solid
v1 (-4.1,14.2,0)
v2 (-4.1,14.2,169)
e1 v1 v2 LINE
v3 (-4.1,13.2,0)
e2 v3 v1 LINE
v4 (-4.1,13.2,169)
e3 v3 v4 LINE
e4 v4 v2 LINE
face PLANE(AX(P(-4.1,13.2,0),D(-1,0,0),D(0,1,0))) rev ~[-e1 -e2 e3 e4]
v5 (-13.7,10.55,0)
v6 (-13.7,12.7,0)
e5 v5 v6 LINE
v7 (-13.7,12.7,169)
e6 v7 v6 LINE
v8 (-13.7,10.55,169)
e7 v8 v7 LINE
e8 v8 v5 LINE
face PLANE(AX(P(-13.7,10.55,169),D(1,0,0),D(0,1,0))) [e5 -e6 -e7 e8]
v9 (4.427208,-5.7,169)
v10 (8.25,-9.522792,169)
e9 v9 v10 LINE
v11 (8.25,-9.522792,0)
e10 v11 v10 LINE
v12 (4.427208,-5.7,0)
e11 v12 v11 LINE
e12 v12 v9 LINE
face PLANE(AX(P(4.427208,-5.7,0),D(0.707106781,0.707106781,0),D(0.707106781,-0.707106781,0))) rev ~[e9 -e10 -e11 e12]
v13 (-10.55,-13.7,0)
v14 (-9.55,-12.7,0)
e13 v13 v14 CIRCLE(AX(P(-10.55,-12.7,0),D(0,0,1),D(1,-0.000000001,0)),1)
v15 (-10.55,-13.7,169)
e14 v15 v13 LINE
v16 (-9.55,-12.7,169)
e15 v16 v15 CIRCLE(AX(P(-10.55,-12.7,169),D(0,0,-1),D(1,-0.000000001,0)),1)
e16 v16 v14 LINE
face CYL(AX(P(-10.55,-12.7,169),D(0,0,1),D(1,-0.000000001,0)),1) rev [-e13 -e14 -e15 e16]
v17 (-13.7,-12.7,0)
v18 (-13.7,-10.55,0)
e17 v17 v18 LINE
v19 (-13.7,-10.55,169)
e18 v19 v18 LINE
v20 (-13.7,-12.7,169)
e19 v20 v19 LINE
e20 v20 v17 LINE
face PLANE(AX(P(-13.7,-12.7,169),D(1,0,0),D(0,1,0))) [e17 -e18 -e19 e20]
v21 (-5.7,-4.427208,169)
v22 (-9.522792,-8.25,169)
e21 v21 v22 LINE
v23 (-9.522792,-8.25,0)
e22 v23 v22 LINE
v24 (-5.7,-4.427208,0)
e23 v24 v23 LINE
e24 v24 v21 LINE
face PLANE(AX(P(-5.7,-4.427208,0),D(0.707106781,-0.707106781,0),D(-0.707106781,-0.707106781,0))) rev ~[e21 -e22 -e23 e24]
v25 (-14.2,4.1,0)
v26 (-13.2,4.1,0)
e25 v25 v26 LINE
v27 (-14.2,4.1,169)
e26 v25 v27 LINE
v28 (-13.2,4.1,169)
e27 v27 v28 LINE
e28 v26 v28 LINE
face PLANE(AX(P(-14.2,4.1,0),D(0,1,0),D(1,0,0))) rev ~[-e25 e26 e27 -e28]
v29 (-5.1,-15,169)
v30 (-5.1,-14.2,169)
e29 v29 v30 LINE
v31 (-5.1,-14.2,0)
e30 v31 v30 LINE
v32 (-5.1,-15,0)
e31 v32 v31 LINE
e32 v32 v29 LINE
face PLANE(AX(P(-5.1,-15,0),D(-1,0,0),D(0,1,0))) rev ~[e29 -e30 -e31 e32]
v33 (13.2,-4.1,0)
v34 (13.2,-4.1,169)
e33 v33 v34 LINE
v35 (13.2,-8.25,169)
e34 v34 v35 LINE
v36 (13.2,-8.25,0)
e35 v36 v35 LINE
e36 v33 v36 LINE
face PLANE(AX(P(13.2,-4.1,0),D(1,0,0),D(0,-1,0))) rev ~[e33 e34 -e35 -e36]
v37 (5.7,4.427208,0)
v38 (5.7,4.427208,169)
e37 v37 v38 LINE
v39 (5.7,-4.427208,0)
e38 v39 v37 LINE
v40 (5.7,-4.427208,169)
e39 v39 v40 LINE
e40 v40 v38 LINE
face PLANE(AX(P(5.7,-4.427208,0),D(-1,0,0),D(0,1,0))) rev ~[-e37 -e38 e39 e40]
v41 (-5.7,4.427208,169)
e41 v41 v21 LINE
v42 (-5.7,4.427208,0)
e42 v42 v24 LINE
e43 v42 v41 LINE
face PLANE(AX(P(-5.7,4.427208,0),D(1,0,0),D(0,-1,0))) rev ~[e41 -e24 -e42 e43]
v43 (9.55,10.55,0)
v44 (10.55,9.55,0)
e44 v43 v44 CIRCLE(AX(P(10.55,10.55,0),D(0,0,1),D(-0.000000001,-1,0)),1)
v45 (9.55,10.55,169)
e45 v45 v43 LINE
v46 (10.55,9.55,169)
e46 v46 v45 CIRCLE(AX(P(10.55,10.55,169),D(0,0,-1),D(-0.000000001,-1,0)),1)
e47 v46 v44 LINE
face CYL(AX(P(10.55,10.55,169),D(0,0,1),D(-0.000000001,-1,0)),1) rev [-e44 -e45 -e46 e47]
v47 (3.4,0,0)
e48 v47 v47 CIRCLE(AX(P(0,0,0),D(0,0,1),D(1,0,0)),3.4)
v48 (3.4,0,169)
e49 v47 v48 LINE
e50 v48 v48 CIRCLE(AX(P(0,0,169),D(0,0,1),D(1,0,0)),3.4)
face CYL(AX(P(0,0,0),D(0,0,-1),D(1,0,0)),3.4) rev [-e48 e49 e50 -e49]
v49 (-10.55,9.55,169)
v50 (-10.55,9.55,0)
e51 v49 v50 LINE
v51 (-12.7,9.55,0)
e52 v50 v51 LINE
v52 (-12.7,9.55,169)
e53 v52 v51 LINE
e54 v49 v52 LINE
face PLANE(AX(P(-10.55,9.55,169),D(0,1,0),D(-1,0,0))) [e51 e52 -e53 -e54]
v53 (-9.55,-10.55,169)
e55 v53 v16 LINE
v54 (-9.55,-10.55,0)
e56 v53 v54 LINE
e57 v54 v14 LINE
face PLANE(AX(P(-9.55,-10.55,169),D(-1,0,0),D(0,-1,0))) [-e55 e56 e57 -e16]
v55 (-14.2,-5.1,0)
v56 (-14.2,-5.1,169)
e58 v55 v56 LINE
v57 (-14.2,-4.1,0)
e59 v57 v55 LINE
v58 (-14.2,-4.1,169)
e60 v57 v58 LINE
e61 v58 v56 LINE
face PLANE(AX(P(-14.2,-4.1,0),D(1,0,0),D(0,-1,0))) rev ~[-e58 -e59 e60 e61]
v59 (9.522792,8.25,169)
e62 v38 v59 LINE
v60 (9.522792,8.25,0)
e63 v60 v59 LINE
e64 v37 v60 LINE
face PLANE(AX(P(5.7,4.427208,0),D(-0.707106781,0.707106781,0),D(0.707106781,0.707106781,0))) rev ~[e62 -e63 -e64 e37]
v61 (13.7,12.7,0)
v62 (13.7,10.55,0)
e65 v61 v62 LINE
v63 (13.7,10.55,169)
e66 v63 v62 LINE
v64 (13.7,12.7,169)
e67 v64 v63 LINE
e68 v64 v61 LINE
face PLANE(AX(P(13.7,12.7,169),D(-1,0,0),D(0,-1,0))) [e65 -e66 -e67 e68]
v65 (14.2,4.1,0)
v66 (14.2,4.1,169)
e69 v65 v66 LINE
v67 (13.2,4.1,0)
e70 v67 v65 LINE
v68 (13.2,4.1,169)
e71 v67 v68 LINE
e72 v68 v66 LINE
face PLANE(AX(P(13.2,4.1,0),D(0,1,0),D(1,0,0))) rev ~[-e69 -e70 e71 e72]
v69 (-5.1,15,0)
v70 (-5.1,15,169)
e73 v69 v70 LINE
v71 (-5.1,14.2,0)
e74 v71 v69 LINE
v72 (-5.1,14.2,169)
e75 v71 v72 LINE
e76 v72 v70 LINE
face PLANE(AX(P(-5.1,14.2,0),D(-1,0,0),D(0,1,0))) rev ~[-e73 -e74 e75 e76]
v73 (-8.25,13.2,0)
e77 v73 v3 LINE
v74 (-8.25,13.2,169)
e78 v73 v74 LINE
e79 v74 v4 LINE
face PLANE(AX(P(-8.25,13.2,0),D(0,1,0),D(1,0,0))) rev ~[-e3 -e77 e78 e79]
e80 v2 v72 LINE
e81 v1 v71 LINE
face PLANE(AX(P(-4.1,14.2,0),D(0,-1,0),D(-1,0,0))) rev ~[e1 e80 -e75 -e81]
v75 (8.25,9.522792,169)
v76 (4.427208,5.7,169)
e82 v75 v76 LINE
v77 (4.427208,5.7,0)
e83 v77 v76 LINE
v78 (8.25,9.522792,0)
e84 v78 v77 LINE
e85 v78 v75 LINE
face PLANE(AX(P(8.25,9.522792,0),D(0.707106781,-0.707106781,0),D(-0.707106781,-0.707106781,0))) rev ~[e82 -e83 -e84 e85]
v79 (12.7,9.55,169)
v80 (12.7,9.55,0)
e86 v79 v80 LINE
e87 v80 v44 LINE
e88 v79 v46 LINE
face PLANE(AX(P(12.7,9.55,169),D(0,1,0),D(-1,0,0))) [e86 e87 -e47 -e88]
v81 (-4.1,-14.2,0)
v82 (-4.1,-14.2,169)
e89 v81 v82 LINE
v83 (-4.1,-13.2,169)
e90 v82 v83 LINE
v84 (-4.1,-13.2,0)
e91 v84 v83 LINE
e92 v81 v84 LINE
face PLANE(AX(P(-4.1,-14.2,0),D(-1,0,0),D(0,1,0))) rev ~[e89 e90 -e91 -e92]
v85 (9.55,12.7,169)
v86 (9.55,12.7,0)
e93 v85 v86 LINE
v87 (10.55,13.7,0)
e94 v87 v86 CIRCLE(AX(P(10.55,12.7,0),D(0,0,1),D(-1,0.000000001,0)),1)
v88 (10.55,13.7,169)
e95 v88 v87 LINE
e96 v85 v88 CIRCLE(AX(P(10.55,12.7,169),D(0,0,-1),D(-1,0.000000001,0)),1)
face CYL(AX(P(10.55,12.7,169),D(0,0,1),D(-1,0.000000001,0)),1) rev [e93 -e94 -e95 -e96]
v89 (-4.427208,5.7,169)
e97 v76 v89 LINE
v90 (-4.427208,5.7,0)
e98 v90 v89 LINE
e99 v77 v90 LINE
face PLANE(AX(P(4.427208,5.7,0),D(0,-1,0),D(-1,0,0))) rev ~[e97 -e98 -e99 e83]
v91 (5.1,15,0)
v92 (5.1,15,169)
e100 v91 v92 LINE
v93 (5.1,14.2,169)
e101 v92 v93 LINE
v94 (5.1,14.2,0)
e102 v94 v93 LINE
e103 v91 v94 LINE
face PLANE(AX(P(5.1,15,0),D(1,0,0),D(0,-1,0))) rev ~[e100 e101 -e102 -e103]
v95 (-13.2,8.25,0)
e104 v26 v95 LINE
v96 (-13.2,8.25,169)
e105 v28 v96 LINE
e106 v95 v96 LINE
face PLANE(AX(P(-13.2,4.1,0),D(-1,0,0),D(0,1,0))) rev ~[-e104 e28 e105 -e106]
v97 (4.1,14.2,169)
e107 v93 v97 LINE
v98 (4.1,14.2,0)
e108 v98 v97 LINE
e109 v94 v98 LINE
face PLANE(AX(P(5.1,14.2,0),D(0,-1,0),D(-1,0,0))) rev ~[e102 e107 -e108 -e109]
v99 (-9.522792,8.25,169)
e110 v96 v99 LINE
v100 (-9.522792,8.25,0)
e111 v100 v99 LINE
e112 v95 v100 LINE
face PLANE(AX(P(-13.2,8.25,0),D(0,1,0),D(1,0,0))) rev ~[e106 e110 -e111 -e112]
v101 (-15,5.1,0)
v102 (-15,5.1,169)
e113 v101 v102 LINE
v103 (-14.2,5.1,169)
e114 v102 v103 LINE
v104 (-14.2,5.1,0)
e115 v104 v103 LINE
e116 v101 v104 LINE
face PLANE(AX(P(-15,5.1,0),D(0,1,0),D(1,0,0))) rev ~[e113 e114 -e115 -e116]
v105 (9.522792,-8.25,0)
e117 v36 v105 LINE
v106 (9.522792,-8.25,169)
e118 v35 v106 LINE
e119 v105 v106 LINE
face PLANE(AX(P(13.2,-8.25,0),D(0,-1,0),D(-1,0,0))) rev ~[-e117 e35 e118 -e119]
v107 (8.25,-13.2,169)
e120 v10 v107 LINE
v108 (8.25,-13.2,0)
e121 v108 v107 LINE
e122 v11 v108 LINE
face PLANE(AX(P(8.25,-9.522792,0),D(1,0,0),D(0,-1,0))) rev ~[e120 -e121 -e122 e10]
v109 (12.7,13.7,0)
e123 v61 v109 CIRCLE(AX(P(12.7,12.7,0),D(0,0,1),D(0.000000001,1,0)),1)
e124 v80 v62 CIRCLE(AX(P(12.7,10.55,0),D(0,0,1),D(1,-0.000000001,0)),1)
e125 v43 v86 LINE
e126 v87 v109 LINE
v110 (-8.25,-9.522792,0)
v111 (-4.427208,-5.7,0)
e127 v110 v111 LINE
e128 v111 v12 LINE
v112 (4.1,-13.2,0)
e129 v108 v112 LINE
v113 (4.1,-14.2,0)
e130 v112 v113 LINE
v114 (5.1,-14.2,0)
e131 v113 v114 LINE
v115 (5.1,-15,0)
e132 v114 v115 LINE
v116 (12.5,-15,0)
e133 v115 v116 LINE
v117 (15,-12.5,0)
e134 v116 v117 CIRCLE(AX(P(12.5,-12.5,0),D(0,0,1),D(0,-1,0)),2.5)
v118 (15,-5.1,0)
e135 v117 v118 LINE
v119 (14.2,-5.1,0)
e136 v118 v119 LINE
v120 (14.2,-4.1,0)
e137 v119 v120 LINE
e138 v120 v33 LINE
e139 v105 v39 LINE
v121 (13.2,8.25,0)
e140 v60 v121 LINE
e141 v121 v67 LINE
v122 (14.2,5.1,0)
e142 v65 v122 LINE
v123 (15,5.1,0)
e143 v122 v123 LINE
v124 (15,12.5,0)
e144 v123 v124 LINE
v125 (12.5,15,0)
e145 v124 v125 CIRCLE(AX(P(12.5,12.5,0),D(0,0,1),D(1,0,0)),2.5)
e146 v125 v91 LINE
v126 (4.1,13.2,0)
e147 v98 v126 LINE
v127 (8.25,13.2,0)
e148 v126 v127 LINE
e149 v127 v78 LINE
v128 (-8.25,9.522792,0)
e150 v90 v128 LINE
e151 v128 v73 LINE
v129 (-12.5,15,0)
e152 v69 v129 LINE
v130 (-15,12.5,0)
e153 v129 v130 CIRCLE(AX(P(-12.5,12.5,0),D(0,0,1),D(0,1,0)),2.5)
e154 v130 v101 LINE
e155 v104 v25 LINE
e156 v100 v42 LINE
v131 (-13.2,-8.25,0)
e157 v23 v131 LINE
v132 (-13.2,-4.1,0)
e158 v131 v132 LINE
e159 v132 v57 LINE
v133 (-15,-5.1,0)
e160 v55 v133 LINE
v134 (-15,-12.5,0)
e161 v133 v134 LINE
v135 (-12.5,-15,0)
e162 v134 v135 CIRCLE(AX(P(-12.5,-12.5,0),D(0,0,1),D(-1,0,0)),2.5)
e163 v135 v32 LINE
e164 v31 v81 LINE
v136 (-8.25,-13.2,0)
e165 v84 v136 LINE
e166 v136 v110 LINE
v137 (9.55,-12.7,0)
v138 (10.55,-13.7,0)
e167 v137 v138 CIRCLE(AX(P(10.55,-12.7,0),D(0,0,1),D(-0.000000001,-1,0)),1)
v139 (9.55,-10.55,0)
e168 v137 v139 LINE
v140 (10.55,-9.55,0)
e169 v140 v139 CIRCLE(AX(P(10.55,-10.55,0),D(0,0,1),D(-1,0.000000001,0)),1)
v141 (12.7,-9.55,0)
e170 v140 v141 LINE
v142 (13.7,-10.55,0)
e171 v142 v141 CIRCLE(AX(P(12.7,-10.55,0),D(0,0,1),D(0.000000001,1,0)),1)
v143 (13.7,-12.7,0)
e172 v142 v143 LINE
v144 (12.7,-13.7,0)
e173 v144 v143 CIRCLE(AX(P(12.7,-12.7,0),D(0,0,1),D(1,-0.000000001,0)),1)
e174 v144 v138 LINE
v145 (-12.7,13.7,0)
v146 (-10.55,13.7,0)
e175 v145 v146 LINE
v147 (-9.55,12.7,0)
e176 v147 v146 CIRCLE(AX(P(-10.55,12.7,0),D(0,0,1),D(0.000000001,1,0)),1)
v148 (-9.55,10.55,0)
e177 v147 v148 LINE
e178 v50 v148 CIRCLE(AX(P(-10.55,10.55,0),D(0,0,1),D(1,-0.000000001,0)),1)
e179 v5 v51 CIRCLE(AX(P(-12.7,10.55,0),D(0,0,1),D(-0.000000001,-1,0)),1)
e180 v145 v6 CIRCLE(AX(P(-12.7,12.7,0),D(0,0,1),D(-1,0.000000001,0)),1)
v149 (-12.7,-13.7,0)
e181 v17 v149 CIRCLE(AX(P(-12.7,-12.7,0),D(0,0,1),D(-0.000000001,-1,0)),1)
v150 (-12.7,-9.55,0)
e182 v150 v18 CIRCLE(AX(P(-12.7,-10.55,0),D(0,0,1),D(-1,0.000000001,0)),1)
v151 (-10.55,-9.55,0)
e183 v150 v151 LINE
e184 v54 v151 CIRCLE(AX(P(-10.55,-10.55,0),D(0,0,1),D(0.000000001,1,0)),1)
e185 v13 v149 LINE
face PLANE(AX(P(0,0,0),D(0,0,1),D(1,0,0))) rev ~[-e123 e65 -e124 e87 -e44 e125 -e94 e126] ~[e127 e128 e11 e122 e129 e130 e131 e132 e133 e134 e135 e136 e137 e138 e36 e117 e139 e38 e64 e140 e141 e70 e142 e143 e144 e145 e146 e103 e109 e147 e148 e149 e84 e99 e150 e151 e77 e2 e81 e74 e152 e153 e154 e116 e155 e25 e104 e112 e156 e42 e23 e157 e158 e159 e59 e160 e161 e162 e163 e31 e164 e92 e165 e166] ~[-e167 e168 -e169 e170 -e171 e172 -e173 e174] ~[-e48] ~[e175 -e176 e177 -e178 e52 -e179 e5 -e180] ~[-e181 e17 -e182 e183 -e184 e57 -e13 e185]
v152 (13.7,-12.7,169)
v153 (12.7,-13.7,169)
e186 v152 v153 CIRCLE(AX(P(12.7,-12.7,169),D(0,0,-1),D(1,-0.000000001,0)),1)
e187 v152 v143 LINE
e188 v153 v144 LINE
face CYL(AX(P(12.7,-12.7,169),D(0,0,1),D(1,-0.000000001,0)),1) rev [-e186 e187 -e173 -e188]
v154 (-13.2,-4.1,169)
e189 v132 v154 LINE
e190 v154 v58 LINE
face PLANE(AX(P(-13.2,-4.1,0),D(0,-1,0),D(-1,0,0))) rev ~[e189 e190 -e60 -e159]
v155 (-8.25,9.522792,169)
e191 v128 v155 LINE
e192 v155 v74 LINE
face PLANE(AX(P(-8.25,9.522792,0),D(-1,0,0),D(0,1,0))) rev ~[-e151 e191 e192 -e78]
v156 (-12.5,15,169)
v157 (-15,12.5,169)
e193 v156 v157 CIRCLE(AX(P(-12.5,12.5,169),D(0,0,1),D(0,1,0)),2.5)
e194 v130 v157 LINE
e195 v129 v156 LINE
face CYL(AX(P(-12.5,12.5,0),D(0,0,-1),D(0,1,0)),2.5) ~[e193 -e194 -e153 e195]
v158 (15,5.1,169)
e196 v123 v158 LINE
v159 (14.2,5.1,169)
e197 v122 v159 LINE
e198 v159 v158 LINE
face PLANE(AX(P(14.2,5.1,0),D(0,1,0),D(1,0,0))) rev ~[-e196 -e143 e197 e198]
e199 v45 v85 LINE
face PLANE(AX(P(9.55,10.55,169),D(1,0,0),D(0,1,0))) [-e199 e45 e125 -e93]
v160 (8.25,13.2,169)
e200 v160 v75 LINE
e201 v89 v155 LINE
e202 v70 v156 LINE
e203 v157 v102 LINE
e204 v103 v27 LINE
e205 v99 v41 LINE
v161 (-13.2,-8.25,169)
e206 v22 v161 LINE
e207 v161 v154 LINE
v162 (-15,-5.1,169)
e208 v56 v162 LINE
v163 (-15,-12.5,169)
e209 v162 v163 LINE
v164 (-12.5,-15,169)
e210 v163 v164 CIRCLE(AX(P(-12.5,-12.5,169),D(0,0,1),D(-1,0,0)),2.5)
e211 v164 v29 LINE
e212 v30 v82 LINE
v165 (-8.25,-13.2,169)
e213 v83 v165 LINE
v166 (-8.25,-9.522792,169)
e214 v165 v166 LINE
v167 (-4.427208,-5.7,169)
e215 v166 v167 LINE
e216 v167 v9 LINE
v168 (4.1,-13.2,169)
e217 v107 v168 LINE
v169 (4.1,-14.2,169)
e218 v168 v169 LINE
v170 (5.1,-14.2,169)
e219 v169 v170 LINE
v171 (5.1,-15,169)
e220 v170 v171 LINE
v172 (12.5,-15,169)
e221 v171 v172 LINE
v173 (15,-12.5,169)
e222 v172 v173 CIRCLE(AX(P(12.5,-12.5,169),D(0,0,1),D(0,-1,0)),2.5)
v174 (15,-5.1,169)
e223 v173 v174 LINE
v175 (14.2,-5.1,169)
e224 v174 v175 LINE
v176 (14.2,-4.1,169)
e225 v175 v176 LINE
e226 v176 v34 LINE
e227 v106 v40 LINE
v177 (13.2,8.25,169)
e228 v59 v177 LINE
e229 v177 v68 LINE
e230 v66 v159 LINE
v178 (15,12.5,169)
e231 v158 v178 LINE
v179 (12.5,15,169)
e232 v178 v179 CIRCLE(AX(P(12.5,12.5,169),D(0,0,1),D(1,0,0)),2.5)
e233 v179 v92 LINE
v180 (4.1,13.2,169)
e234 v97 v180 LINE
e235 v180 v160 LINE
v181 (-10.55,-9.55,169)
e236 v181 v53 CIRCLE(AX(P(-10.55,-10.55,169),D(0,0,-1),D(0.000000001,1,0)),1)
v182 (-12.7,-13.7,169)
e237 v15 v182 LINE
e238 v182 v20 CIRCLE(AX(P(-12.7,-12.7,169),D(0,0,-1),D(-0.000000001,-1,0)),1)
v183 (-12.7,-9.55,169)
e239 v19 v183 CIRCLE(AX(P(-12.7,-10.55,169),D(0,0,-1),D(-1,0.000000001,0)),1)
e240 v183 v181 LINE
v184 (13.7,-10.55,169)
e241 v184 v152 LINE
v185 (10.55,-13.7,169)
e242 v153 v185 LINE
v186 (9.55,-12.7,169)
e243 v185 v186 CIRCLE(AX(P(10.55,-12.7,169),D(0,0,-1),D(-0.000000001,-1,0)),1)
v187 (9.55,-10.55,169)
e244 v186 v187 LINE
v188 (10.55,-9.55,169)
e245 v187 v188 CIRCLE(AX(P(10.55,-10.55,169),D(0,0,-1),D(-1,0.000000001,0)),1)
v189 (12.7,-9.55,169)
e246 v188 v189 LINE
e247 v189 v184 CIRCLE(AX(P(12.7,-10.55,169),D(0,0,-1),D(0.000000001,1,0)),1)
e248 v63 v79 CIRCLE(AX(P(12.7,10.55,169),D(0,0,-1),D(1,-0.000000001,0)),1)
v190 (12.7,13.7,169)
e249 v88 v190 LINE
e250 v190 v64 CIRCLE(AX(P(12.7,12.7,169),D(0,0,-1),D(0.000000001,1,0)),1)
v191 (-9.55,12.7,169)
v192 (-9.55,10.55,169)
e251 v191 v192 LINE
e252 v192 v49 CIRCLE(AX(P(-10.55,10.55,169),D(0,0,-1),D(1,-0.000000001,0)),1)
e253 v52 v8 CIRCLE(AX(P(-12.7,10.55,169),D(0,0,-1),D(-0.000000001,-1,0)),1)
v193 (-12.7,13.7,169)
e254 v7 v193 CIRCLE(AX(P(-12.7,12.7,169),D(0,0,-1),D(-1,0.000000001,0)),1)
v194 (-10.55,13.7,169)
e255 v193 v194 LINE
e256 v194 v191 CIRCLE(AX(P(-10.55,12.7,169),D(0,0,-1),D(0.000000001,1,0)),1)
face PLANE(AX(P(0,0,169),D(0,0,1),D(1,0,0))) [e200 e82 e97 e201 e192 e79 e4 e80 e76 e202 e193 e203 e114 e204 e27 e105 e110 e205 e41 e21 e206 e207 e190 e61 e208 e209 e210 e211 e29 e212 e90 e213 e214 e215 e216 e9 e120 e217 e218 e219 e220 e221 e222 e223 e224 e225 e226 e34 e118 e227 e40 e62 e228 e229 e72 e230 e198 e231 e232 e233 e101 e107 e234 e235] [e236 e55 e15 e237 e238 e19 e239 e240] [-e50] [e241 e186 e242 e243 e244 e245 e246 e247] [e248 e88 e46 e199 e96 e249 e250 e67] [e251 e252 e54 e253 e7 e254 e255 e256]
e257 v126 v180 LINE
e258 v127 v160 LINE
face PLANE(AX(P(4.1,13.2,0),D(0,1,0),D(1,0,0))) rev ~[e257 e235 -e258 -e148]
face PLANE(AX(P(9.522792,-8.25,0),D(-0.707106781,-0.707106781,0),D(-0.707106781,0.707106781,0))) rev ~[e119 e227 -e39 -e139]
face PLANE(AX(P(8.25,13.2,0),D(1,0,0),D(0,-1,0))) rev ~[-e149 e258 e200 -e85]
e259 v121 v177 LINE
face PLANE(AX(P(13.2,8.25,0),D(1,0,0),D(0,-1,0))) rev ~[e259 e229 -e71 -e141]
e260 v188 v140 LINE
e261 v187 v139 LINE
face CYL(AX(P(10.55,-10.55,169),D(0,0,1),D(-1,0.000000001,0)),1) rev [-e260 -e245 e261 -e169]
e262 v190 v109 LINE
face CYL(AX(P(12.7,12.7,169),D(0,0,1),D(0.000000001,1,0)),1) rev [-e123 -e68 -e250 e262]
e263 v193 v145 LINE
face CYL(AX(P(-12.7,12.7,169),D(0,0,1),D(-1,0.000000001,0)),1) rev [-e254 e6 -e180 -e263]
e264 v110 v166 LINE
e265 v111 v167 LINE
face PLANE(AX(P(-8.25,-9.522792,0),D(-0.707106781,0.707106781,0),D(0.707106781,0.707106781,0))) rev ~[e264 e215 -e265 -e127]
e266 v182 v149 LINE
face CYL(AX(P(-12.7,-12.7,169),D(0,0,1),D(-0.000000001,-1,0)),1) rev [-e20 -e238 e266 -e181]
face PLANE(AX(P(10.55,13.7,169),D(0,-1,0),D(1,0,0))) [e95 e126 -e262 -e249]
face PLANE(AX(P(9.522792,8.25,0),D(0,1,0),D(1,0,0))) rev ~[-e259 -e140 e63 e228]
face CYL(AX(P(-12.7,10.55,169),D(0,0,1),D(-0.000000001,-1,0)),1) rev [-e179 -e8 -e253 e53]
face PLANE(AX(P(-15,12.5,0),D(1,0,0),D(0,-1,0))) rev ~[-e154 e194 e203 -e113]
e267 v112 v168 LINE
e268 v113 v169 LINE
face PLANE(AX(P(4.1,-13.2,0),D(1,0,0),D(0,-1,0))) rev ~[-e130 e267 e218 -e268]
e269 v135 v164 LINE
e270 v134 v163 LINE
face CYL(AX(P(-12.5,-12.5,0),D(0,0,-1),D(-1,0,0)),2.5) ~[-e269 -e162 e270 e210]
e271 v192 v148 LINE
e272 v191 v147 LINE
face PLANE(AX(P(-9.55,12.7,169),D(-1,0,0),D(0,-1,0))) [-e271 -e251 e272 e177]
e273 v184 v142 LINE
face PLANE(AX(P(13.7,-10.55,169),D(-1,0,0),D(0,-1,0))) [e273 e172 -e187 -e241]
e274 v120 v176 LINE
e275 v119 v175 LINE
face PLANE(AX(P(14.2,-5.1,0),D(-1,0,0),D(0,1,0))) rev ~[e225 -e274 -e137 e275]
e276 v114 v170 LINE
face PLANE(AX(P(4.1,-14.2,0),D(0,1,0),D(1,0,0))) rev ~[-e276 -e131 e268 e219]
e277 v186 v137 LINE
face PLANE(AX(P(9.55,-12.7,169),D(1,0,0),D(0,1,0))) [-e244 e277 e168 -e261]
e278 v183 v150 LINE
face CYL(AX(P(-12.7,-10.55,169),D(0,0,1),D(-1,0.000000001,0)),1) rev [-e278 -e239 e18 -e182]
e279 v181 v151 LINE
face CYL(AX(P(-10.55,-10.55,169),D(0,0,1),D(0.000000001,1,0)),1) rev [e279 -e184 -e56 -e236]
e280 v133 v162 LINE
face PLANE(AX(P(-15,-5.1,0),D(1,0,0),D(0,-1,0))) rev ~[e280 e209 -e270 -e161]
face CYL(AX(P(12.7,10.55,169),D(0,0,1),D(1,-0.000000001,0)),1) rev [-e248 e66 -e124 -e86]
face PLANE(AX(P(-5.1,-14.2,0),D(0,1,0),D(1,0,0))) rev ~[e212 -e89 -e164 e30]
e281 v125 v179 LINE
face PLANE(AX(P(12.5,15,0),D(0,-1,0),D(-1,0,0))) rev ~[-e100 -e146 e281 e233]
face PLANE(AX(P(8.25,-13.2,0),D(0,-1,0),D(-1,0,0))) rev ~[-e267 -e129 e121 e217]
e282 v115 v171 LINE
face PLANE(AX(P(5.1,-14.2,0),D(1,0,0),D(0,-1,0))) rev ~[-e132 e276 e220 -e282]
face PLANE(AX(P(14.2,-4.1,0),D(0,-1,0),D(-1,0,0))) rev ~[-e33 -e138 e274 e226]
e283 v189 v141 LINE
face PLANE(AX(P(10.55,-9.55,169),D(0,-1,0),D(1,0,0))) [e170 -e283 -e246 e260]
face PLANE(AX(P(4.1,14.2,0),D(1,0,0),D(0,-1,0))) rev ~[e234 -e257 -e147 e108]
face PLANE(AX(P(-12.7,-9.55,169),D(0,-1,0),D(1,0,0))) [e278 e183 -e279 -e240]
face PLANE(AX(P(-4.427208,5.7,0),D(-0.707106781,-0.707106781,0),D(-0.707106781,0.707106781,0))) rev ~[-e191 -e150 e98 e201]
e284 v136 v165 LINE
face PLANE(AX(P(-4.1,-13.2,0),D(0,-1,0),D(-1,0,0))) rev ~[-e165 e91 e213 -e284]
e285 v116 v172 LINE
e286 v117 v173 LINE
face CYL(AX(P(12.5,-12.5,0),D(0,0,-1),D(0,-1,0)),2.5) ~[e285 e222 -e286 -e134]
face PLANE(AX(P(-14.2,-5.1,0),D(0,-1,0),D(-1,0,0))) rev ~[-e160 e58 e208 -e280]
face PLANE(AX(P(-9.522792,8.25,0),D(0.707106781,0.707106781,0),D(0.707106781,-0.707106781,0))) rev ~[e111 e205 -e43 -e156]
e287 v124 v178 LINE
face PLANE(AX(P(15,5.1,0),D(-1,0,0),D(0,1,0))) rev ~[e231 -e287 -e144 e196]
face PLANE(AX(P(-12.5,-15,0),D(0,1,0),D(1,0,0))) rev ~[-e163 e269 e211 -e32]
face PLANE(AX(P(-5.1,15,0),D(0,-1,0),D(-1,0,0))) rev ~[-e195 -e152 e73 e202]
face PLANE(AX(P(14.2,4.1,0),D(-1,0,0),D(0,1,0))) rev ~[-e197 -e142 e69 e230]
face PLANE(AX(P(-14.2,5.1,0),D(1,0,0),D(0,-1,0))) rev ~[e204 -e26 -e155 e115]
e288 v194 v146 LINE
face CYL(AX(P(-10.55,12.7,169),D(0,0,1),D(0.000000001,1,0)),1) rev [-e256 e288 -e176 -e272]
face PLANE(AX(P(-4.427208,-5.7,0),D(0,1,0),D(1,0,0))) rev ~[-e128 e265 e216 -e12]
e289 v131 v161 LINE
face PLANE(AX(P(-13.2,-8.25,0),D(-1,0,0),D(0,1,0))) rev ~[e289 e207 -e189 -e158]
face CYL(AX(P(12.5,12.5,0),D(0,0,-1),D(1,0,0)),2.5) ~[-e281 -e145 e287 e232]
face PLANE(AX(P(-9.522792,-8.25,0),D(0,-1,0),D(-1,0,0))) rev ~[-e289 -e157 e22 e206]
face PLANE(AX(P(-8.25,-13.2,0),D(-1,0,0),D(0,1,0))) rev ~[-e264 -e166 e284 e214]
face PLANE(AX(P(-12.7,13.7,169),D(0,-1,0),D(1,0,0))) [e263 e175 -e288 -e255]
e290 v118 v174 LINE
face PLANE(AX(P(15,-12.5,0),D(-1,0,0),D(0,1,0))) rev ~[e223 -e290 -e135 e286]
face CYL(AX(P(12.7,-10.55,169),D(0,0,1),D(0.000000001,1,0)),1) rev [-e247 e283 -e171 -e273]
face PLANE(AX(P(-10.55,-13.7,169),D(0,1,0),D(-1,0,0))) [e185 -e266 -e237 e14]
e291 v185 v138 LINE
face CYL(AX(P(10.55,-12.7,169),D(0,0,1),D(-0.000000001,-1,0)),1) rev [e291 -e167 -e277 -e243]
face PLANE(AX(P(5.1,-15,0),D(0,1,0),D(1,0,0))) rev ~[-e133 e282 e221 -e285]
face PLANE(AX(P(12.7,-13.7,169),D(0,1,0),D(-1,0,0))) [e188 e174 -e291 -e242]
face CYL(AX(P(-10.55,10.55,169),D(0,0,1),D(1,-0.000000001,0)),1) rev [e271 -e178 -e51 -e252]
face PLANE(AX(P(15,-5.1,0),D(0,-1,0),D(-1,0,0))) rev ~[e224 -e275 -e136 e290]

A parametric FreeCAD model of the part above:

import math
import FreeCAD as App
import Part
import Sketcher

doc = App.newDocument("Part")
params = doc.addObject("Spreadsheet::Sheet", "Params")
for row, (alias, value) in enumerate([
    ("sketch1_diameter", "6.8 mm"),
    ("sketch1_radius", "2.5 mm"),
    ("sketch1_width", "1 mm"),
    ("sketch1_width2", "7.4 mm"),
    ("sketch1_width3", "0.8 mm"),
    ("pad1_length", "169 mm"),
    ("sketch2_radius", "1 mm"),
    ("sketch2_width", "2.15 mm"),
], start=1):
    params.set(f"A{row}", alias)
    params.set(f"B{row}", "=" + value)
    params.setAlias(f"B{row}", alias)

body = doc.addObject("PartDesign::Body", "Body")

# Sketch on XY plane
sketch1 = doc.addObject("Sketcher::SketchObject", "Sketch")
body.addObject(sketch1)
sketch1.AttachmentSupport = (doc.XY_Plane, [""])
sketch1.MapMode = "FlatFace"
sketch1.addGeometry([
    Part.LineSegment(App.Vector(-5.1, 14.2, 0), App.Vector(-5.1, 15, 0)),  # 0
    Part.LineSegment(App.Vector(-5.1, 15, 0), App.Vector(-12.5, 15, 0)),  # 1
    Part.ArcOfCircle(Part.Circle(App.Vector(-12.5, 12.5, 0), App.Vector(0, 0, 1), 2.5), math.radians(90), math.radians(180)),  # 2
    Part.LineSegment(App.Vector(-15, 12.5, 0), App.Vector(-15, 5.1, 0)),  # 3
    Part.LineSegment(App.Vector(-15, 5.1, 0), App.Vector(-14.2, 5.1, 0)),  # 4
    Part.LineSegment(App.Vector(-14.2, 5.1, 0), App.Vector(-14.2, 4.1, 0)),  # 5
    Part.LineSegment(App.Vector(-14.2, 4.1, 0), App.Vector(-13.2, 4.1, 0)),  # 6
    Part.LineSegment(App.Vector(-13.2, 4.1, 0), App.Vector(-13.2, 8.2, 0)),  # 7
    Part.LineSegment(App.Vector(-13.2, 8.2, 0), App.Vector(-9.5, 8.2, 0)),  # 8
    Part.LineSegment(App.Vector(-9.5, 8.2, 0), App.Vector(-5.7, 4.4, 0)),  # 9
    Part.LineSegment(App.Vector(-5.7, 4.4, 0), App.Vector(-5.7, -4.4, 0)),  # 10
    Part.LineSegment(App.Vector(-5.7, -4.4, 0), App.Vector(-9.5, -8.2, 0)),  # 11
    Part.LineSegment(App.Vector(-9.5, -8.2, 0), App.Vector(-13.2, -8.2, 0)),  # 12
    Part.LineSegment(App.Vector(-13.2, -8.2, 0), App.Vector(-13.2, -4.1, 0)),  # 13
    Part.LineSegment(App.Vector(-13.2, -4.1, 0), App.Vector(-14.2, -4.1, 0)),  # 14
    Part.LineSegment(App.Vector(-14.2, -4.1, 0), App.Vector(-14.2, -5.1, 0)),  # 15
    Part.LineSegment(App.Vector(-14.2, -5.1, 0), App.Vector(-15, -5.1, 0)),  # 16
    Part.LineSegment(App.Vector(-15, -5.1, 0), App.Vector(-15, -12.5, 0)),  # 17
    Part.ArcOfCircle(Part.Circle(App.Vector(-12.5, -12.5, 0), App.Vector(0, 0, 1), 2.5), math.radians(180), math.radians(270)),  # 18
    Part.LineSegment(App.Vector(-12.5, -15, 0), App.Vector(-5.1, -15, 0)),  # 19
    Part.LineSegment(App.Vector(-5.1, -15, 0), App.Vector(-5.1, -14.2, 0)),  # 20
    Part.LineSegment(App.Vector(-5.1, -14.2, 0), App.Vector(-4.1, -14.2, 0)),  # 21
    Part.LineSegment(App.Vector(-4.1, -14.2, 0), App.Vector(-4.1, -13.2, 0)),  # 22
    Part.LineSegment(App.Vector(-4.1, -13.2, 0), App.Vector(-8.2, -13.2, 0)),  # 23
    Part.LineSegment(App.Vector(-8.2, -13.2, 0), App.Vector(-8.2, -9.5, 0)),  # 24
    Part.LineSegment(App.Vector(-8.2, -9.5, 0), App.Vector(-4.4, -5.7, 0)),  # 25
    Part.LineSegment(App.Vector(-4.4, -5.7, 0), App.Vector(4.4, -5.7, 0)),  # 26
    Part.LineSegment(App.Vector(4.4, -5.7, 0), App.Vector(8.2, -9.5, 0)),  # 27
    Part.LineSegment(App.Vector(8.2, -9.5, 0), App.Vector(8.2, -13.2, 0)),  # 28
    Part.LineSegment(App.Vector(8.2, -13.2, 0), App.Vector(4.1, -13.2, 0)),  # 29
    Part.LineSegment(App.Vector(4.1, -13.2, 0), App.Vector(4.1, -14.2, 0)),  # 30
    Part.LineSegment(App.Vector(4.1, -14.2, 0), App.Vector(5.1, -14.2, 0)),  # 31
    Part.LineSegment(App.Vector(5.1, -14.2, 0), App.Vector(5.1, -15, 0)),  # 32
    Part.LineSegment(App.Vector(5.1, -15, 0), App.Vector(12.5, -15, 0)),  # 33
    Part.ArcOfCircle(Part.Circle(App.Vector(12.5, -12.5, 0), App.Vector(0, 0, 1), 2.5), math.radians(-90), math.radians(0)),  # 34
    Part.LineSegment(App.Vector(15, -12.5, 0), App.Vector(15, -5.1, 0)),  # 35
    Part.LineSegment(App.Vector(15, -5.1, 0), App.Vector(14.2, -5.1, 0)),  # 36
    Part.LineSegment(App.Vector(14.2, -5.1, 0), App.Vector(14.2, -4.1, 0)),  # 37
    Part.LineSegment(App.Vector(14.2, -4.1, 0), App.Vector(13.2, -4.1, 0)),  # 38
    Part.LineSegment(App.Vector(13.2, -4.1, 0), App.Vector(13.2, -8.2, 0)),  # 39
    Part.LineSegment(App.Vector(13.2, -8.2, 0), App.Vector(9.5, -8.2, 0)),  # 40
    Part.LineSegment(App.Vector(9.5, -8.2, 0), App.Vector(5.7, -4.4, 0)),  # 41
    Part.LineSegment(App.Vector(5.7, -4.4, 0), App.Vector(5.7, 4.4, 0)),  # 42
    Part.LineSegment(App.Vector(5.7, 4.4, 0), App.Vector(9.5, 8.2, 0)),  # 43
    Part.LineSegment(App.Vector(9.5, 8.2, 0), App.Vector(13.2, 8.2, 0)),  # 44
    Part.LineSegment(App.Vector(13.2, 8.2, 0), App.Vector(13.2, 4.1, 0)),  # 45
    Part.LineSegment(App.Vector(13.2, 4.1, 0), App.Vector(14.2, 4.1, 0)),  # 46
    Part.LineSegment(App.Vector(14.2, 4.1, 0), App.Vector(14.2, 5.1, 0)),  # 47
    Part.LineSegment(App.Vector(14.2, 5.1, 0), App.Vector(15, 5.1, 0)),  # 48
    Part.LineSegment(App.Vector(15, 5.1, 0), App.Vector(15, 12.5, 0)),  # 49
    Part.ArcOfCircle(Part.Circle(App.Vector(12.5, 12.5, 0), App.Vector(0, 0, 1), 2.5), math.radians(0), math.radians(90)),  # 50
    Part.LineSegment(App.Vector(12.5, 15, 0), App.Vector(5.1, 15, 0)),  # 51
    Part.LineSegment(App.Vector(5.1, 15, 0), App.Vector(5.1, 14.2, 0)),  # 52
    Part.LineSegment(App.Vector(5.1, 14.2, 0), App.Vector(4.1, 14.2, 0)),  # 53
    Part.LineSegment(App.Vector(4.1, 14.2, 0), App.Vector(4.1, 13.2, 0)),  # 54
    Part.LineSegment(App.Vector(4.1, 13.2, 0), App.Vector(8.2, 13.2, 0)),  # 55
    Part.LineSegment(App.Vector(8.2, 13.2, 0), App.Vector(8.2, 9.5, 0)),  # 56
    Part.LineSegment(App.Vector(8.2, 9.5, 0), App.Vector(4.4, 5.7, 0)),  # 57
    Part.LineSegment(App.Vector(4.4, 5.7, 0), App.Vector(-4.4, 5.7, 0)),  # 58
    Part.LineSegment(App.Vector(-4.4, 5.7, 0), App.Vector(-8.2, 9.5, 0)),  # 59
    Part.LineSegment(App.Vector(-8.2, 9.5, 0), App.Vector(-8.2, 13.2, 0)),  # 60
    Part.LineSegment(App.Vector(-8.2, 13.2, 0), App.Vector(-4.1, 13.2, 0)),  # 61
    Part.LineSegment(App.Vector(-4.1, 13.2, 0), App.Vector(-4.1, 14.2, 0)),  # 62
    Part.LineSegment(App.Vector(-4.1, 14.2, 0), App.Vector(-5.1, 14.2, 0)),  # 63
    Part.Circle(App.Vector(0, 0, 0), App.Vector(0, 0, 1), 3.4),  # 64
], False)
sketch1.addConstraint([
    Sketcher.Constraint("Coincident", 0, 2, 1, 1),
    Sketcher.Constraint("Tangent", 1, 2, 2, 1),
    Sketcher.Constraint("Tangent", 2, 2, 3, 1),
    Sketcher.Constraint("Coincident", 3, 2, 4, 1),
    Sketcher.Constraint("Coincident", 4, 2, 5, 1),
    Sketcher.Constraint("Coincident", 5, 2, 6, 1),
    Sketcher.Constraint("Coincident", 6, 2, 7, 1),
    Sketcher.Constraint("Coincident", 7, 2, 8, 1),
    Sketcher.Constraint("Coincident", 8, 2, 9, 1),
    Sketcher.Constraint("Coincident", 9, 2, 10, 1),
    Sketcher.Constraint("Coincident", 10, 2, 11, 1),
    Sketcher.Constraint("Coincident", 11, 2, 12, 1),
    Sketcher.Constraint("Coincident", 12, 2, 13, 1),
    Sketcher.Constraint("Coincident", 13, 2, 14, 1),
    Sketcher.Constraint("Coincident", 14, 2, 15, 1),
    Sketcher.Constraint("Coincident", 15, 2, 16, 1),
    Sketcher.Constraint("Coincident", 16, 2, 17, 1),
    Sketcher.Constraint("Tangent", 17, 2, 18, 1),
    Sketcher.Constraint("Tangent", 18, 2, 19, 1),
    Sketcher.Constraint("Coincident", 19, 2, 20, 1),
    Sketcher.Constraint("Coincident", 20, 2, 21, 1),
    Sketcher.Constraint("Coincident", 21, 2, 22, 1),
    Sketcher.Constraint("Coincident", 22, 2, 23, 1),
    Sketcher.Constraint("Coincident", 23, 2, 24, 1),
    Sketcher.Constraint("Coincident", 24, 2, 25, 1),
    Sketcher.Constraint("Coincident", 25, 2, 26, 1),
    Sketcher.Constraint("Coincident", 26, 2, 27, 1),
    Sketcher.Constraint("Coincident", 27, 2, 28, 1),
    Sketcher.Constraint("Coincident", 28, 2, 29, 1),
    Sketcher.Constraint("Coincident", 29, 2, 30, 1),
    Sketcher.Constraint("Coincident", 30, 2, 31, 1),
    Sketcher.Constraint("Coincident", 31, 2, 32, 1),
    Sketcher.Constraint("Coincident", 32, 2, 33, 1),
    Sketcher.Constraint("Tangent", 33, 2, 34, 1),
    Sketcher.Constraint("Tangent", 34, 2, 35, 1),
    Sketcher.Constraint("Coincident", 35, 2, 36, 1),
    Sketcher.Constraint("Coincident", 36, 2, 37, 1),
    Sketcher.Constraint("Coincident", 37, 2, 38, 1),
    Sketcher.Constraint("Coincident", 38, 2, 39, 1),
    Sketcher.Constraint("Coincident", 39, 2, 40, 1),
    Sketcher.Constraint("Coincident", 40, 2, 41, 1),
    Sketcher.Constraint("Coincident", 41, 2, 42, 1),
    Sketcher.Constraint("Coincident", 42, 2, 43, 1),
    Sketcher.Constraint("Coincident", 43, 2, 44, 1),
    Sketcher.Constraint("Coincident", 44, 2, 45, 1),
    Sketcher.Constraint("Coincident", 45, 2, 46, 1),
    Sketcher.Constraint("Coincident", 46, 2, 47, 1),
    Sketcher.Constraint("Coincident", 47, 2, 48, 1),
    Sketcher.Constraint("Coincident", 48, 2, 49, 1),
    Sketcher.Constraint("Tangent", 49, 2, 50, 1),
    Sketcher.Constraint("Tangent", 50, 2, 51, 1),
    Sketcher.Constraint("Coincident", 51, 2, 52, 1),
    Sketcher.Constraint("Coincident", 52, 2, 53, 1),
    Sketcher.Constraint("Coincident", 53, 2, 54, 1),
    Sketcher.Constraint("Coincident", 54, 2, 55, 1),
    Sketcher.Constraint("Coincident", 55, 2, 56, 1),
    Sketcher.Constraint("Coincident", 56, 2, 57, 1),
    Sketcher.Constraint("Coincident", 57, 2, 58, 1),
    Sketcher.Constraint("Coincident", 58, 2, 59, 1),
    Sketcher.Constraint("Coincident", 59, 2, 60, 1),
    Sketcher.Constraint("Coincident", 60, 2, 61, 1),
    Sketcher.Constraint("Coincident", 61, 2, 62, 1),
    Sketcher.Constraint("Coincident", 62, 2, 63, 1),
    Sketcher.Constraint("Coincident", 63, 2, 0, 1),
    Sketcher.Constraint("Vertical", 0),
    Sketcher.Constraint("Horizontal", 1),
    Sketcher.Constraint("Vertical", 3),
    Sketcher.Constraint("Horizontal", 4),
    Sketcher.Constraint("Vertical", 5),
    Sketcher.Constraint("Horizontal", 6),
    Sketcher.Constraint("Vertical", 7),
    Sketcher.Constraint("Horizontal", 8),
    Sketcher.Constraint("Vertical", 10),
    Sketcher.Constraint("Horizontal", 12),
    Sketcher.Constraint("Vertical", 13),
    Sketcher.Constraint("Horizontal", 14),
    Sketcher.Constraint("Vertical", 15),
    Sketcher.Constraint("Horizontal", 16),
    Sketcher.Constraint("Vertical", 17),
    Sketcher.Constraint("Horizontal", 19),
    Sketcher.Constraint("Vertical", 20),
    Sketcher.Constraint("Horizontal", 21),
    Sketcher.Constraint("Vertical", 22),
    Sketcher.Constraint("Horizontal", 23),
    Sketcher.Constraint("Vertical", 24),
    Sketcher.Constraint("Horizontal", 26),
    Sketcher.Constraint("Vertical", 28),
    Sketcher.Constraint("Horizontal", 29),
    Sketcher.Constraint("Vertical", 30),
    Sketcher.Constraint("Horizontal", 31),
    Sketcher.Constraint("Vertical", 32),
    Sketcher.Constraint("Horizontal", 33),
    Sketcher.Constraint("Vertical", 35),
    Sketcher.Constraint("Horizontal", 36),
    Sketcher.Constraint("Vertical", 37),
    Sketcher.Constraint("Horizontal", 38),
    Sketcher.Constraint("Vertical", 39),
    Sketcher.Constraint("Horizontal", 40),
    Sketcher.Constraint("Vertical", 42),
    Sketcher.Constraint("Horizontal", 44),
    Sketcher.Constraint("Vertical", 45),
    Sketcher.Constraint("Horizontal", 46),
    Sketcher.Constraint("Vertical", 47),
    Sketcher.Constraint("Horizontal", 48),
    Sketcher.Constraint("Vertical", 49),
    Sketcher.Constraint("Horizontal", 51),
    Sketcher.Constraint("Vertical", 52),
    Sketcher.Constraint("Horizontal", 53),
    Sketcher.Constraint("Vertical", 54),
    Sketcher.Constraint("Horizontal", 55),
    Sketcher.Constraint("Vertical", 56),
    Sketcher.Constraint("Horizontal", 58),
    Sketcher.Constraint("Vertical", 60),
    Sketcher.Constraint("Horizontal", 61),
    Sketcher.Constraint("Vertical", 62),
    Sketcher.Constraint("Horizontal", 63),
    Sketcher.Constraint("Coincident", 64, 3, -1, 1),
    Sketcher.Constraint("Equal", 2, 18),
    Sketcher.Constraint("Equal", 18, 34),
    Sketcher.Constraint("Equal", 34, 50),
    Sketcher.Constraint("Symmetric", 2, 3, 34, 3, -1, 1),
    Sketcher.Constraint("Symmetric", 18, 3, 50, 3, -1, 1),
    Sketcher.Constraint("Symmetric", 4, 2, 36, 2, -1, 1),
    Sketcher.Constraint("Symmetric", 6, 2, 38, 2, -1, 1),
    Sketcher.Constraint("Symmetric", 8, 2, 40, 2, -1, 1),
    Sketcher.Constraint("Symmetric", 9, 2, 41, 2, -1, 1),
    Sketcher.Constraint("Symmetric", 11, 2, 43, 2, -1, 1),
    Sketcher.Constraint("Symmetric", 13, 2, 45, 2, -1, 1),
    Sketcher.Constraint("Symmetric", 15, 2, 47, 2, -1, 1),
    Sketcher.Constraint("Symmetric", 20, 2, 52, 2, -1, 1),
    Sketcher.Constraint("Symmetric", 22, 2, 54, 2, -1, 1),
    Sketcher.Constraint("Symmetric", 24, 2, 56, 2, -1, 1),
    Sketcher.Constraint("Symmetric", 25, 2, 57, 2, -1, 1),
    Sketcher.Constraint("Symmetric", 27, 2, 59, 2, -1, 1),
    Sketcher.Constraint("Symmetric", 29, 2, 61, 2, -1, 1),
    Sketcher.Constraint("Symmetric", 31, 2, 63, 2, -1, 1),
    Sketcher.Constraint("Symmetric", 18, 3, 34, 3, -2),
    Sketcher.Constraint("Symmetric", 24, 2, 27, 2, -2),
    Sketcher.Constraint("Symmetric", 22, 2, 29, 2, -2),
    Sketcher.Constraint("Symmetric", 20, 2, 31, 2, -2),
    Sketcher.Constraint("Symmetric", 15, 2, 36, 2, -2),
    Sketcher.Constraint("Symmetric", 13, 2, 38, 2, -2),
    Sketcher.Constraint("Symmetric", 11, 2, 40, 2, -2),
    Sketcher.Constraint("Perpendicular", 9, 11),
    Sketcher.Constraint("Parallel", 11, 25),
    Sketcher.Constraint("Perpendicular", 25, 27),
    Sketcher.Constraint("Perpendicular", 41, 43),
    Sketcher.Constraint("Perpendicular", 57, 59),
    Sketcher.Constraint("Horizontal", 10, 2, 41, 2),
    Sketcher.Constraint("Equal", 14, 21),
    Sketcher.Constraint("Equal", 48, 0),
    Sketcher.Constraint("Equal", 51, 3),
    Sketcher.Constraint("Equal", 63, 5),
    Sketcher.Constraint("Equal", 61, 7),
    Sketcher.Constraint("Equal", 58, 10),
    Sketcher.Constraint("Equal", 15, 22),
    Sketcher.Constraint("Equal", 44, 24),
    Sketcher.Constraint("Equal", 11, 25),
    Sketcher.Constraint("Diameter", 64, 6.8),
    Sketcher.Constraint("Radius", 2, 2.5),
    Sketcher.Constraint("DistanceX", 6, 1, 6, 2, 1.0),
    Sketcher.Constraint("DistanceX", 1, 2, 1, 1, 7.4),
    Sketcher.Constraint("DistanceX", 4, 1, 4, 2, 0.8),
    Sketcher.Constraint("DistanceY", -1, 1, 0, 2, 15.0),
    Sketcher.Constraint("DistanceX", 23, 2, 23, 1, 4.15),
    Sketcher.Constraint("DistanceX", 9, 2, -1, 1, 5.7),
    Sketcher.Constraint("DistanceX", 8, 1, 8, 2, 3.677208),
])
sketch1.setExpression("Constraints[158]", "Params.sketch1_diameter")
sketch1.setExpression("Constraints[159]", "Params.sketch1_radius")
sketch1.setExpression("Constraints[160]", "Params.sketch1_width")
sketch1.setExpression("Constraints[161]", "Params.sketch1_width2")
sketch1.setExpression("Constraints[162]", "Params.sketch1_width3")
pad1 = doc.addObject("PartDesign::Pad", "Pad")
body.addObject(pad1)
pad1.Profile = sketch1
pad1.setExpression("Length", "Params.pad1_length")

# Sketch on XY plane
sketch2 = doc.addObject("Sketcher::SketchObject", "Sketch001")
body.addObject(sketch2)
sketch2.AttachmentSupport = (doc.XY_Plane, [""])
sketch2.MapMode = "FlatFace"
sketch2.AttachmentOffset = App.Placement(App.Vector(0, 0, 169), App.Rotation())
sketch2.addGeometry([
    Part.LineSegment(App.Vector(13.7, 10.6, 0), App.Vector(13.7, 12.7, 0)),  # 0
    Part.ArcOfCircle(Part.Circle(App.Vector(12.7, 12.7, 0), App.Vector(0, 0, 1), 1), math.radians(0), math.radians(90)),  # 1
    Part.LineSegment(App.Vector(12.7, 13.7, 0), App.Vector(10.6, 13.7, 0)),  # 2
    Part.ArcOfCircle(Part.Circle(App.Vector(10.6, 12.7, 0), App.Vector(0, 0, 1), 1), math.radians(90), math.radians(180)),  # 3
    Part.LineSegment(App.Vector(9.6, 12.7, 0), App.Vector(9.6, 10.6, 0)),  # 4
    Part.ArcOfCircle(Part.Circle(App.Vector(10.6, 10.6, 0), App.Vector(0, 0, 1), 1), math.radians(-180), math.radians(-90)),  # 5
    Part.LineSegment(App.Vector(10.6, 9.6, 0), App.Vector(12.7, 9.6, 0)),  # 6
    Part.ArcOfCircle(Part.Circle(App.Vector(12.7, 10.6, 0), App.Vector(0, 0, 1), 1), math.radians(-90), math.radians(0)),  # 7
    Part.LineSegment(App.Vector(-10.6, 13.7, 0), App.Vector(-12.7, 13.7, 0)),  # 8
    Part.ArcOfCircle(Part.Circle(App.Vector(-12.7, 12.7, 0), App.Vector(0, 0, 1), 1), math.radians(90), math.radians(180)),  # 9
    Part.LineSegment(App.Vector(-13.7, 12.7, 0), App.Vector(-13.7, 10.6, 0)),  # 10
    Part.ArcOfCircle(Part.Circle(App.Vector(-12.7, 10.6, 0), App.Vector(0, 0, 1), 1), math.radians(-180), math.radians(-90)),  # 11
    Part.LineSegment(App.Vector(-12.7, 9.6, 0), App.Vector(-10.6, 9.6, 0)),  # 12
    Part.ArcOfCircle(Part.Circle(App.Vector(-10.6, 10.6, 0), App.Vector(0, 0, 1), 1), math.radians(-90), math.radians(0)),  # 13
    Part.LineSegment(App.Vector(-9.6, 10.6, 0), App.Vector(-9.6, 12.7, 0)),  # 14
    Part.ArcOfCircle(Part.Circle(App.Vector(-10.6, 12.7, 0), App.Vector(0, 0, 1), 1), math.radians(0), math.radians(90)),  # 15
    Part.LineSegment(App.Vector(10.6, -13.7, 0), App.Vector(12.7, -13.7, 0)),  # 16
    Part.ArcOfCircle(Part.Circle(App.Vector(12.7, -12.7, 0), App.Vector(0, 0, 1), 1), math.radians(-90), math.radians(0)),  # 17
    Part.LineSegment(App.Vector(13.7, -12.7, 0), App.Vector(13.7, -10.6, 0)),  # 18
    Part.ArcOfCircle(Part.Circle(App.Vector(12.7, -10.6, 0), App.Vector(0, 0, 1), 1), math.radians(0), math.radians(90)),  # 19
    Part.LineSegment(App.Vector(12.7, -9.6, 0), App.Vector(10.6, -9.6, 0)),  # 20
    Part.ArcOfCircle(Part.Circle(App.Vector(10.6, -10.6, 0), App.Vector(0, 0, 1), 1), math.radians(90), math.radians(180)),  # 21
    Part.LineSegment(App.Vector(9.6, -10.6, 0), App.Vector(9.6, -12.7, 0)),  # 22
    Part.ArcOfCircle(Part.Circle(App.Vector(10.6, -12.7, 0), App.Vector(0, 0, 1), 1), math.radians(-180), math.radians(-90)),  # 23
    Part.LineSegment(App.Vector(-13.7, -10.6, 0), App.Vector(-13.7, -12.7, 0)),  # 24
    Part.ArcOfCircle(Part.Circle(App.Vector(-12.7, -12.7, 0), App.Vector(0, 0, 1), 1), math.radians(-180), math.radians(-90)),  # 25
    Part.LineSegment(App.Vector(-12.7, -13.7, 0), App.Vector(-10.6, -13.7, 0)),  # 26
    Part.ArcOfCircle(Part.Circle(App.Vector(-10.6, -12.7, 0), App.Vector(0, 0, 1), 1), math.radians(-90), math.radians(0)),  # 27
    Part.LineSegment(App.Vector(-9.6, -12.7, 0), App.Vector(-9.6, -10.6, 0)),  # 28
    Part.ArcOfCircle(Part.Circle(App.Vector(-10.6, -10.6, 0), App.Vector(0, 0, 1), 1), math.radians(0), math.radians(90)),  # 29
    Part.LineSegment(App.Vector(-10.6, -9.6, 0), App.Vector(-12.7, -9.6, 0)),  # 30
    Part.ArcOfCircle(Part.Circle(App.Vector(-12.7, -10.6, 0), App.Vector(0, 0, 1), 1), math.radians(90), math.radians(180)),  # 31
], False)
sketch2.addConstraint([
    Sketcher.Constraint("Tangent", 0, 2, 1, 1),
    Sketcher.Constraint("Tangent", 1, 2, 2, 1),
    Sketcher.Constraint("Tangent", 2, 2, 3, 1),
    Sketcher.Constraint("Tangent", 3, 2, 4, 1),
    Sketcher.Constraint("Tangent", 4, 2, 5, 1),
    Sketcher.Constraint("Tangent", 5, 2, 6, 1),
    Sketcher.Constraint("Tangent", 6, 2, 7, 1),
    Sketcher.Constraint("Tangent", 7, 2, 0, 1),
    Sketcher.Constraint("Tangent", 8, 2, 9, 1),
    Sketcher.Constraint("Tangent", 9, 2, 10, 1),
    Sketcher.Constraint("Tangent", 10, 2, 11, 1),
    Sketcher.Constraint("Tangent", 11, 2, 12, 1),
    Sketcher.Constraint("Tangent", 12, 2, 13, 1),
    Sketcher.Constraint("Tangent", 13, 2, 14, 1),
    Sketcher.Constraint("Tangent", 14, 2, 15, 1),
    Sketcher.Constraint("Tangent", 15, 2, 8, 1),
    Sketcher.Constraint("Tangent", 16, 2, 17, 1),
    Sketcher.Constraint("Tangent", 17, 2, 18, 1),
    Sketcher.Constraint("Tangent", 18, 2, 19, 1),
    Sketcher.Constraint("Tangent", 19, 2, 20, 1),
    Sketcher.Constraint("Tangent", 20, 2, 21, 1),
    Sketcher.Constraint("Tangent", 21, 2, 22, 1),
    Sketcher.Constraint("Tangent", 22, 2, 23, 1),
    Sketcher.Constraint("Tangent", 23, 2, 16, 1),
    Sketcher.Constraint("Tangent", 24, 2, 25, 1),
    Sketcher.Constraint("Tangent", 25, 2, 26, 1),
    Sketcher.Constraint("Tangent", 26, 2, 27, 1),
    Sketcher.Constraint("Tangent", 27, 2, 28, 1),
    Sketcher.Constraint("Tangent", 28, 2, 29, 1),
    Sketcher.Constraint("Tangent", 29, 2, 30, 1),
    Sketcher.Constraint("Tangent", 30, 2, 31, 1),
    Sketcher.Constraint("Tangent", 31, 2, 24, 1),
    Sketcher.Constraint("Vertical", 0),
    Sketcher.Constraint("Horizontal", 2),
    Sketcher.Constraint("Vertical", 4),
    Sketcher.Constraint("Horizontal", 6),
    Sketcher.Constraint("Horizontal", 8),
    Sketcher.Constraint("Vertical", 10),
    Sketcher.Constraint("Horizontal", 12),
    Sketcher.Constraint("Vertical", 14),
    Sketcher.Constraint("Horizontal", 16),
    Sketcher.Constraint("Vertical", 18),
    Sketcher.Constraint("Horizontal", 20),
    Sketcher.Constraint("Vertical", 22),
    Sketcher.Constraint("Vertical", 24),
    Sketcher.Constraint("Horizontal", 26),
    Sketcher.Constraint("Vertical", 28),
    Sketcher.Constraint("Horizontal", 30),
    Sketcher.Constraint("Equal", 1, 3),
    Sketcher.Constraint("Equal", 3, 5),
    Sketcher.Constraint("Equal", 5, 7),
    Sketcher.Constraint("Equal", 7, 9),
    Sketcher.Constraint("Equal", 9, 11),
    Sketcher.Constraint("Equal", 11, 13),
    Sketcher.Constraint("Equal", 13, 15),
    Sketcher.Constraint("Equal", 15, 17),
    Sketcher.Constraint("Equal", 17, 19),
    Sketcher.Constraint("Equal", 19, 21),
    Sketcher.Constraint("Equal", 21, 23),
    Sketcher.Constraint("Equal", 23, 25),
    Sketcher.Constraint("Equal", 25, 27),
    Sketcher.Constraint("Equal", 27, 29),
    Sketcher.Constraint("Equal", 29, 31),
    Sketcher.Constraint("Symmetric", 9, 3, 17, 3, -1, 1),
    Sketcher.Constraint("Symmetric", 13, 3, 21, 3, -1, 1),
    Sketcher.Constraint("Symmetric", 1, 3, 25, 3, -1, 1),
    Sketcher.Constraint("Symmetric", 5, 3, 29, 3, -1, 1),
    Sketcher.Constraint("Symmetric", 1, 3, 9, 3, -2),
    Sketcher.Constraint("Symmetric", 5, 3, 13, 3, -2),
    Sketcher.Constraint("Equal", 30, 0),
    Sketcher.Constraint("Radius", 1, 1.0),
    Sketcher.Constraint("DistanceX", 2, 2, 2, 1, 2.15),
    Sketcher.Constraint("DistanceX", -1, 1, 1, 3, 12.7),
    Sketcher.Constraint("DistanceY", -1, 1, 1, 3, 12.7),
])
sketch2.setExpression("Constraints[70]", "Params.sketch2_radius")
sketch2.setExpression("Constraints[71]", "Params.sketch2_width")
pocket1 = doc.addObject("PartDesign::Pocket", "Pocket")
body.addObject(pocket1)
pocket1.Profile = sketch2
pocket1.Type = "ThroughAll"

doc.recompute()
